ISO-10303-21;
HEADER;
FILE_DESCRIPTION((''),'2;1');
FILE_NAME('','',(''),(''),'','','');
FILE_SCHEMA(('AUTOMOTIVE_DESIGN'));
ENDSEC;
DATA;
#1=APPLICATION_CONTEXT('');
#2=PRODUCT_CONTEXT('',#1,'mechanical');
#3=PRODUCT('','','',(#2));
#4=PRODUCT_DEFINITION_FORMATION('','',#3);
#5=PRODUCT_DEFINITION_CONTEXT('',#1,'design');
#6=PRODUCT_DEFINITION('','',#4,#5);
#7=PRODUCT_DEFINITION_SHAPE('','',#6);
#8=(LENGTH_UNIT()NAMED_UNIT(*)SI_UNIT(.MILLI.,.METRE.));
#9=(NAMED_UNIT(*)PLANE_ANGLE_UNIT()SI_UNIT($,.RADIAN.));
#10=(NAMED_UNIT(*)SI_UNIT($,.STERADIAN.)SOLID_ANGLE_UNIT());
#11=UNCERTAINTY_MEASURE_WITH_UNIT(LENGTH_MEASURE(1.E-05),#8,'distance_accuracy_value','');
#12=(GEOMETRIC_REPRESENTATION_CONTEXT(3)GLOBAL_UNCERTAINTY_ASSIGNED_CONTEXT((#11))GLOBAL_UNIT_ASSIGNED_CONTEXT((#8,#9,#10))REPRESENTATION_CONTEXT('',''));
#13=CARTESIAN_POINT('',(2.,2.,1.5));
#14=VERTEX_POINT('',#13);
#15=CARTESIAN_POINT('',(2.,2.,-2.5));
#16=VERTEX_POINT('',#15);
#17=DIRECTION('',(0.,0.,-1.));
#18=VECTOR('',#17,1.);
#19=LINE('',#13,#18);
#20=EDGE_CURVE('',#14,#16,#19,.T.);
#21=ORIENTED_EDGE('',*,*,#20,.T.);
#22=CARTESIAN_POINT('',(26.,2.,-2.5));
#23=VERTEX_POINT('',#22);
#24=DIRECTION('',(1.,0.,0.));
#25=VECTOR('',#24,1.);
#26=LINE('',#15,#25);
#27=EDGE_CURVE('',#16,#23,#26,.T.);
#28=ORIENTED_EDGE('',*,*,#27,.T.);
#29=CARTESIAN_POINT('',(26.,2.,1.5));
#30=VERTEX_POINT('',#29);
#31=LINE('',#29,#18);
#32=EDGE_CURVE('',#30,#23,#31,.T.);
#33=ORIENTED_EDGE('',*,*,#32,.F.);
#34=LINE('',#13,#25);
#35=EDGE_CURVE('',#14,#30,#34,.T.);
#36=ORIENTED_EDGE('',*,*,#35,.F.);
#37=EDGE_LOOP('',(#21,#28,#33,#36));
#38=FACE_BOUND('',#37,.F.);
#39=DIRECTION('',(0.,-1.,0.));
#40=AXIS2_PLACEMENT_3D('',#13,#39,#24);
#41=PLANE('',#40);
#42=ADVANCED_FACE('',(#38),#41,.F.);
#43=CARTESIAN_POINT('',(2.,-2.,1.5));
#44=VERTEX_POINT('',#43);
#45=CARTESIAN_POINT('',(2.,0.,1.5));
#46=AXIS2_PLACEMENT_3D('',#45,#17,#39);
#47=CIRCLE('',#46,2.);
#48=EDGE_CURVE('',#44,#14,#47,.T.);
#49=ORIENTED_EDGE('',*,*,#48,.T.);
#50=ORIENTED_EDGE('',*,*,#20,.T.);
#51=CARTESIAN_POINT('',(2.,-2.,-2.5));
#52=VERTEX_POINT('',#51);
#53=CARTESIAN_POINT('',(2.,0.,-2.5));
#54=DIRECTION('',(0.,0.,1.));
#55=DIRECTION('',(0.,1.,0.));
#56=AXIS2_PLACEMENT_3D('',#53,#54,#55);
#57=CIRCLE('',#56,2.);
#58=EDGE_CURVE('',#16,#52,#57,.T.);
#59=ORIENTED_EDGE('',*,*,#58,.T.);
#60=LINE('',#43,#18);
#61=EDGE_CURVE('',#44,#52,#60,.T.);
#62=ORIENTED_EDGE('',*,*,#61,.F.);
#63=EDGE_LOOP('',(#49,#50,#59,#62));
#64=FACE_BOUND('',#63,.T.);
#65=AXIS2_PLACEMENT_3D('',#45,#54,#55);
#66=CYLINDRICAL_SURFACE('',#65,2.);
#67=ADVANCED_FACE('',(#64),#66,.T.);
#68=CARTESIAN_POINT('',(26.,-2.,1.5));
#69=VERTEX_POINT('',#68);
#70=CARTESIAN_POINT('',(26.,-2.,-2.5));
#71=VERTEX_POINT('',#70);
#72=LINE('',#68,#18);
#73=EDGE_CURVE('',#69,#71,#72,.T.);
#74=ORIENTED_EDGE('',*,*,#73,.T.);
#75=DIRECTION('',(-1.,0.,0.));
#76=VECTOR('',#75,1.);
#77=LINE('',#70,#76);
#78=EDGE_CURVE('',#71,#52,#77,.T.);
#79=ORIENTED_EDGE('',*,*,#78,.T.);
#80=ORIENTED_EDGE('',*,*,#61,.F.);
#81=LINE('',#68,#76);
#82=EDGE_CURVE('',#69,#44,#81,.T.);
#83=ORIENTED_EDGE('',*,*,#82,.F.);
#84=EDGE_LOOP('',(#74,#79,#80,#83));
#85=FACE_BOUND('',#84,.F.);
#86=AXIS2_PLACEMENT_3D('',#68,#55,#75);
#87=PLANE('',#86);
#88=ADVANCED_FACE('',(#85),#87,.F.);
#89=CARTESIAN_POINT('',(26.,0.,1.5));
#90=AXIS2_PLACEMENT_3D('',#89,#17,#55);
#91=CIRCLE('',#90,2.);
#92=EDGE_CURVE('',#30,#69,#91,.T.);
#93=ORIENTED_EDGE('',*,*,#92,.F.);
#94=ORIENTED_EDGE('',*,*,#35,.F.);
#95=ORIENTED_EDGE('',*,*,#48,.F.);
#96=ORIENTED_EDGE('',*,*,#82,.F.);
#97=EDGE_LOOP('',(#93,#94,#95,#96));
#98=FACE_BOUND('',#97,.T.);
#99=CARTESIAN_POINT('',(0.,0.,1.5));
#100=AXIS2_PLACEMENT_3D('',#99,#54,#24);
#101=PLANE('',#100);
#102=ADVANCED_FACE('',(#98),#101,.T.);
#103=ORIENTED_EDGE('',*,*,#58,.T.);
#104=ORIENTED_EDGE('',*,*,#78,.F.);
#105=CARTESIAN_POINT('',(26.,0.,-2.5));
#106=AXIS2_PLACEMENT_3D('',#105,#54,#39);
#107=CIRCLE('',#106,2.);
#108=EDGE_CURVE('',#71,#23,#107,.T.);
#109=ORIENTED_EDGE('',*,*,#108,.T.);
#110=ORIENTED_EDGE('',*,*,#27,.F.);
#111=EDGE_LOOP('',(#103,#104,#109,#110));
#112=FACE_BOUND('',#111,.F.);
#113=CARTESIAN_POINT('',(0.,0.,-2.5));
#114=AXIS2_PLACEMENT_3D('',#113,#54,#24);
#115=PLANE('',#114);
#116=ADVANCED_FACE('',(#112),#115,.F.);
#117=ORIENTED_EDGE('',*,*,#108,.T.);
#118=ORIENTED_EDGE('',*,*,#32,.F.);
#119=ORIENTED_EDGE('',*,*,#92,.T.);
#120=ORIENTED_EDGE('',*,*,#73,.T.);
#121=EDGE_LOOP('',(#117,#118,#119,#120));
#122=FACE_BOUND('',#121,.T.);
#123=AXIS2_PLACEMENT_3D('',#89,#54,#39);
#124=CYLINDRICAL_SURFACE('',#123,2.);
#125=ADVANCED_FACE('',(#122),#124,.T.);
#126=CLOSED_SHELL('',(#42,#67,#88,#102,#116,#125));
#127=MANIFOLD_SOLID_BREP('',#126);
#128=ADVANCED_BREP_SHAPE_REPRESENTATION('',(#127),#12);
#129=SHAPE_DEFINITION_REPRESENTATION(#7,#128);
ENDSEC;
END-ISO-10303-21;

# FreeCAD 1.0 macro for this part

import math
import FreeCAD as App
import Part
import Sketcher

doc = App.newDocument("Part")
body = doc.addObject("PartDesign::Body", "Body")

# Sketch on XY plane
sketch1 = doc.addObject("Sketcher::SketchObject", "Sketch")
body.addObject(sketch1)
sketch1.AttachmentSupport = (doc.XY_Plane, [""])
sketch1.MapMode = "FlatFace"
sketch1.AttachmentOffset = App.Placement(App.Vector(0, 0, 1.5), App.Rotation())
sketch1.addGeometry([
    Part.LineSegment(App.Vector(26, 2, 0), App.Vector(2, 2, 0)),
    Part.ArcOfCircle(Part.Circle(App.Vector(2, 0, 0), App.Vector(0, 0, 1), 2), math.radians(90), math.radians(270)),
    Part.LineSegment(App.Vector(2, -2, 0), App.Vector(26, -2, 0)),
    Part.ArcOfCircle(Part.Circle(App.Vector(26, 0, 0), App.Vector(0, 0, 1), 2), math.radians(-90), math.radians(90)),
], False)
sketch1.addConstraint([
    Sketcher.Constraint("Tangent", 0, 2, 1, 1),
    Sketcher.Constraint("Tangent", 1, 2, 2, 1),
    Sketcher.Constraint("Tangent", 2, 2, 3, 1),
    Sketcher.Constraint("Tangent", 3, 2, 0, 1),
    Sketcher.Constraint("Horizontal", 0),
    Sketcher.Constraint("Horizontal", 2),
    Sketcher.Constraint("PointOnObject", 1, 3, -1),
    Sketcher.Constraint("Radius", 1, 2.0),
    Sketcher.Constraint("DistanceX", -1, 1, 1, 3, 2.0),
    Sketcher.Constraint("DistanceX", 0, 2, 0, 1, 24.0),
])
pad1 = doc.addObject("PartDesign::Pad", "Pad")
body.addObject(pad1)
pad1.Profile = sketch1
pad1.Length = 4
pad1.Reversed = True

doc.recompute()
